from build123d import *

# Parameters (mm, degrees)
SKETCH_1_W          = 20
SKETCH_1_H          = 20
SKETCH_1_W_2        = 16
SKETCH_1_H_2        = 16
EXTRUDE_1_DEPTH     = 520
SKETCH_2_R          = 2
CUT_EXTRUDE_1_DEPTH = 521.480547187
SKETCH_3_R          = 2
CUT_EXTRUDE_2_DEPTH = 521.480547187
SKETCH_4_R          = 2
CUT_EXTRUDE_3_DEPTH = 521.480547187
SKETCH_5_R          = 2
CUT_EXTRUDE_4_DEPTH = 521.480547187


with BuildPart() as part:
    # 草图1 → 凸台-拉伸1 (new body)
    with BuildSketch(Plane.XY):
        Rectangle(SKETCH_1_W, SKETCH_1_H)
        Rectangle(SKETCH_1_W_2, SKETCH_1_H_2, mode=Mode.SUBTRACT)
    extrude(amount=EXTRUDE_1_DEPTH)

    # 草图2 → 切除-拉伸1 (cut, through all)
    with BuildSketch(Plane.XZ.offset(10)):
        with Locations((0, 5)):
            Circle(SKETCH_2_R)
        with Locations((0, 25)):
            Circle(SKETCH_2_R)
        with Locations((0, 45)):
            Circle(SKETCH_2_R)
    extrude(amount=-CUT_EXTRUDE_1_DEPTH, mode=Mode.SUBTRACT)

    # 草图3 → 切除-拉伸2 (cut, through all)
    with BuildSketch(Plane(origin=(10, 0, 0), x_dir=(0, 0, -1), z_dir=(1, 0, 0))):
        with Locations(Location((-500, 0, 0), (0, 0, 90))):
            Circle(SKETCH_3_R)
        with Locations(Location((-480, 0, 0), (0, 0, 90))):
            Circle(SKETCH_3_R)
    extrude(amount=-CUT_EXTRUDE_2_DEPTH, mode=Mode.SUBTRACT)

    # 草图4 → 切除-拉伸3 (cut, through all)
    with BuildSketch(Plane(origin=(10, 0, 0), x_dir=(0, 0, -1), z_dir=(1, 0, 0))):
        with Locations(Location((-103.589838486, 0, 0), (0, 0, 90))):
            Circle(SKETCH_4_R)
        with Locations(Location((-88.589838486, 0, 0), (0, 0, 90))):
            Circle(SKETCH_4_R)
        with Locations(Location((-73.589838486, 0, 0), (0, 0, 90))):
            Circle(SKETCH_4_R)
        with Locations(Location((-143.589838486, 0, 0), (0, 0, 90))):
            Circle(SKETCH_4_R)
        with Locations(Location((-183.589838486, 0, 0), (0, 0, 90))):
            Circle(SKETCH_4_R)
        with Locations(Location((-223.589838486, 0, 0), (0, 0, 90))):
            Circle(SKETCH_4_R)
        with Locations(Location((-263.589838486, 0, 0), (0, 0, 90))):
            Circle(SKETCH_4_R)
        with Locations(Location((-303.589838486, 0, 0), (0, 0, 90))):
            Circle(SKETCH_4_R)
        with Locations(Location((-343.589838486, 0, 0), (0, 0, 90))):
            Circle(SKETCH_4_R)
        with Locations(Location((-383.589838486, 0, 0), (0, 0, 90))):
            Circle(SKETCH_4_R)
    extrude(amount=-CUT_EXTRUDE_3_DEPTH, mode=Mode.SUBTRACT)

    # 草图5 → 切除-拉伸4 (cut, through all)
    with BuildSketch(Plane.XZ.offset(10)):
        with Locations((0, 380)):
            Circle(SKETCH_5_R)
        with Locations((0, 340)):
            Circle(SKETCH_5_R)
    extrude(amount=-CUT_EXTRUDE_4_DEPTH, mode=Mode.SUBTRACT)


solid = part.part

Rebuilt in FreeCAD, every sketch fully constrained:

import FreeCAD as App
import Part
import Sketcher
from FreeCAD import Vector
Q = App.Units.Quantity

doc = App.newDocument("Part")
body = doc.addObject("PartDesign::Body", "Body")

sketch1 = body.newObject("Sketcher::SketchObject", "Sketch")
sketch1.AttachmentSupport = (doc.getObject("XY_Plane"), [""])
sketch1.MapMode = "FlatFace"
sketch1.addGeometry([
    Part.LineSegment(Vector(-10, 10, 0), Vector(-10, -10, 0)),
    Part.LineSegment(Vector(-10, -10, 0), Vector(10, -10, 0)),
    Part.LineSegment(Vector(10, -10, 0), Vector(10, 10, 0)),
    Part.LineSegment(Vector(10, 10, 0), Vector(-10, 10, 0)),
    Part.LineSegment(Vector(8, -8, 0), Vector(-8, -8, 0)),
    Part.LineSegment(Vector(-8, -8, 0), Vector(-8, 8, 0)),
    Part.LineSegment(Vector(-8, 8, 0), Vector(8, 8, 0)),
    Part.LineSegment(Vector(8, 8, 0), Vector(8, -8, 0)),
], False)
sketch1.addConstraint([
    Sketcher.Constraint("Coincident", 0, 2, 1, 1),
    Sketcher.Constraint("Coincident", 1, 2, 2, 1),
    Sketcher.Constraint("Coincident", 2, 2, 3, 1),
    Sketcher.Constraint("Coincident", 3, 2, 0, 1),
    Sketcher.Constraint("Coincident", 4, 2, 5, 1),
    Sketcher.Constraint("Coincident", 5, 2, 6, 1),
    Sketcher.Constraint("Coincident", 6, 2, 7, 1),
    Sketcher.Constraint("Coincident", 7, 2, 4, 1),
    Sketcher.Constraint("Vertical", 0),
    Sketcher.Constraint("Horizontal", 1),
    Sketcher.Constraint("Vertical", 2),
    Sketcher.Constraint("Horizontal", 3),
    Sketcher.Constraint("Horizontal", 4),
    Sketcher.Constraint("Vertical", 5),
    Sketcher.Constraint("Horizontal", 6),
    Sketcher.Constraint("Vertical", 7),
    Sketcher.Constraint("Symmetric", 0, 2, 2, 2, -1, 1),
    Sketcher.Constraint("Symmetric", 4, 2, 6, 2, -1, 1),
    Sketcher.Constraint("Equal", 3, 0),
    Sketcher.Constraint("Equal", 6, 5),
    Sketcher.Constraint("DistanceX", 1, 1, 1, 2, Q("20 mm")),
    Sketcher.Constraint("DistanceX", 4, 2, 4, 1, Q("16 mm")),
])
pad1 = body.newObject("PartDesign::Pad", "Pad")
pad1.Profile = sketch1
pad1.Length = 520

sketch2 = body.newObject("Sketcher::SketchObject", "Sketch001")
sketch2.AttachmentSupport = (doc.getObject("XZ_Plane"), [""])
sketch2.MapMode = "FlatFace"
sketch2.AttachmentOffset = App.Placement(Vector(0, 0, 10), App.Rotation())
sketch2.addGeometry([
    Part.Circle(Vector(0, 5, 0), Vector(0, 0, 1), 2),
    Part.Circle(Vector(0, 25, 0), Vector(0, 0, 1), 2),
    Part.Circle(Vector(0, 45, 0), Vector(0, 0, 1), 2),
], False)
sketch2.addConstraint([
    Sketcher.Constraint("Equal", 0, 1),
    Sketcher.Constraint("Equal", 1, 2),
    Sketcher.Constraint("PointOnObject", 0, 3, -2),
    Sketcher.Constraint("PointOnObject", 1, 3, -2),
    Sketcher.Constraint("PointOnObject", 2, 3, -2),
    Sketcher.Constraint("Diameter", 0, Q("4 mm")),
    Sketcher.Constraint("DistanceY", -1, 1, 0, 3, Q("5 mm")),
    Sketcher.Constraint("DistanceY", -1, 1, 1, 3, Q("25 mm")),
    Sketcher.Constraint("DistanceY", -1, 1, 2, 3, Q("45 mm")),
])
pocket1 = body.newObject("PartDesign::Pocket", "Pocket")
pocket1.Profile = sketch2
pocket1.Type = "ThroughAll"

sketch3 = body.newObject("Sketcher::SketchObject", "Sketch002")
sketch3.AttachmentSupport = (doc.getObject("YZ_Plane"), [""])
sketch3.MapMode = "FlatFace"
sketch3.AttachmentOffset = App.Placement(Vector(0, 0, 10), App.Rotation())
sketch3.addGeometry([
    Part.Circle(Vector(0, 500, 0), Vector(0, 0, 1), 2),
    Part.Circle(Vector(0, 480, 0), Vector(0, 0, 1), 2),
], False)
sketch3.addConstraint([
    Sketcher.Constraint("Equal", 0, 1),
    Sketcher.Constraint("PointOnObject", 0, 3, -2),
    Sketcher.Constraint("PointOnObject", 1, 3, -2),
    Sketcher.Constraint("Diameter", 0, Q("4 mm")),
    Sketcher.Constraint("DistanceY", -1, 1, 0, 3, Q("500 mm")),
    Sketcher.Constraint("DistanceY", -1, 1, 1, 3, Q("480 mm")),
])
pocket2 = body.newObject("PartDesign::Pocket", "Pocket001")
pocket2.Profile = sketch3
pocket2.Type = "ThroughAll"

sketch4 = body.newObject("Sketcher::SketchObject", "Sketch003")
sketch4.AttachmentSupport = (doc.getObject("YZ_Plane"), [""])
sketch4.MapMode = "FlatFace"
sketch4.AttachmentOffset = App.Placement(Vector(0, 0, 10), App.Rotation())
sketch4.addGeometry([
    Part.Circle(Vector(0, 103.6, 0), Vector(0, 0, 1), 2),
    Part.Circle(Vector(0, 88.6, 0), Vector(0, 0, 1), 2),
    Part.Circle(Vector(0, 73.6, 0), Vector(0, 0, 1), 2),
    Part.Circle(Vector(0, 143.6, 0), Vector(0, 0, 1), 2),
    Part.Circle(Vector(0, 183.6, 0), Vector(0, 0, 1), 2),
    Part.Circle(Vector(0, 223.6, 0), Vector(0, 0, 1), 2),
    Part.Circle(Vector(0, 263.6, 0), Vector(0, 0, 1), 2),
    Part.Circle(Vector(0, 303.6, 0), Vector(0, 0, 1), 2),
    Part.Circle(Vector(0, 343.6, 0), Vector(0, 0, 1), 2),
    Part.Circle(Vector(0, 383.6, 0), Vector(0, 0, 1), 2),
], False)
sketch4.addConstraint([
    Sketcher.Constraint("Equal", 0, 1),
    Sketcher.Constraint("Equal", 1, 2),
    Sketcher.Constraint("Equal", 2, 3),
    Sketcher.Constraint("Equal", 3, 4),
    Sketcher.Constraint("Equal", 4, 5),
    Sketcher.Constraint("Equal", 5, 6),
    Sketcher.Constraint("Equal", 6, 7),
    Sketcher.Constraint("Equal", 7, 8),
    Sketcher.Constraint("Equal", 8, 9),
    Sketcher.Constraint("PointOnObject", 0, 3, -2),
    Sketcher.Constraint("PointOnObject", 1, 3, -2),
    Sketcher.Constraint("PointOnObject", 2, 3, -2),
    Sketcher.Constraint("PointOnObject", 3, 3, -2),
    Sketcher.Constraint("PointOnObject", 4, 3, -2),
    Sketcher.Constraint("PointOnObject", 5, 3, -2),
    Sketcher.Constraint("PointOnObject", 6, 3, -2),
    Sketcher.Constraint("PointOnObject", 7, 3, -2),
    Sketcher.Constraint("PointOnObject", 8, 3, -2),
    Sketcher.Constraint("PointOnObject", 9, 3, -2),
    Sketcher.Constraint("Diameter", 0, Q("4 mm")),
    Sketcher.Constraint("DistanceY", 1, 3, 0, 3, Q("15 mm")),
    Sketcher.Constraint("DistanceY", 2, 3, 1, 3, Q("15 mm")),
    Sketcher.Constraint("DistanceY", 0, 3, 3, 3, Q("40 mm")),
    Sketcher.Constraint("DistanceY", 3, 3, 4, 3, Q("40 mm")),
    Sketcher.Constraint("DistanceY", 4, 3, 5, 3, Q("40 mm")),
    Sketcher.Constraint("DistanceY", 5, 3, 6, 3, Q("40 mm")),
    Sketcher.Constraint("DistanceY", 6, 3, 7, 3, Q("40 mm")),
    Sketcher.Constraint("DistanceY", 7, 3, 8, 3, Q("40 mm")),
    Sketcher.Constraint("DistanceY", 8, 3, 9, 3, Q("40 mm")),
    Sketcher.Constraint("DistanceY", -1, 1, 0, 3, Q("103.589838 mm")),
])
pocket3 = body.newObject("PartDesign::Pocket", "Pocket002")
pocket3.Profile = sketch4
pocket3.Type = "ThroughAll"

sketch5 = body.newObject("Sketcher::SketchObject", "Sketch004")
sketch5.AttachmentSupport = (doc.getObject("XZ_Plane"), [""])
sketch5.MapMode = "FlatFace"
sketch5.AttachmentOffset = App.Placement(Vector(0, 0, 10), App.Rotation())
sketch5.addGeometry([
    Part.Circle(Vector(0, 380, 0), Vector(0, 0, 1), 2),
    Part.Circle(Vector(0, 340, 0), Vector(0, 0, 1), 2),
], False)
sketch5.addConstraint([
    Sketcher.Constraint("Equal", 0, 1),
    Sketcher.Constraint("PointOnObject", 0, 3, -2),
    Sketcher.Constraint("PointOnObject", 1, 3, -2),
    Sketcher.Constraint("Diameter", 0, Q("4 mm")),
    Sketcher.Constraint("DistanceY", -1, 1, 0, 3, Q("380 mm")),
    Sketcher.Constraint("DistanceY", -1, 1, 1, 3, Q("340 mm")),
])
pocket4 = body.newObject("PartDesign::Pocket", "Pocket003")
pocket4.Profile = sketch5
pocket4.Type = "ThroughAll"

doc.recompute()
